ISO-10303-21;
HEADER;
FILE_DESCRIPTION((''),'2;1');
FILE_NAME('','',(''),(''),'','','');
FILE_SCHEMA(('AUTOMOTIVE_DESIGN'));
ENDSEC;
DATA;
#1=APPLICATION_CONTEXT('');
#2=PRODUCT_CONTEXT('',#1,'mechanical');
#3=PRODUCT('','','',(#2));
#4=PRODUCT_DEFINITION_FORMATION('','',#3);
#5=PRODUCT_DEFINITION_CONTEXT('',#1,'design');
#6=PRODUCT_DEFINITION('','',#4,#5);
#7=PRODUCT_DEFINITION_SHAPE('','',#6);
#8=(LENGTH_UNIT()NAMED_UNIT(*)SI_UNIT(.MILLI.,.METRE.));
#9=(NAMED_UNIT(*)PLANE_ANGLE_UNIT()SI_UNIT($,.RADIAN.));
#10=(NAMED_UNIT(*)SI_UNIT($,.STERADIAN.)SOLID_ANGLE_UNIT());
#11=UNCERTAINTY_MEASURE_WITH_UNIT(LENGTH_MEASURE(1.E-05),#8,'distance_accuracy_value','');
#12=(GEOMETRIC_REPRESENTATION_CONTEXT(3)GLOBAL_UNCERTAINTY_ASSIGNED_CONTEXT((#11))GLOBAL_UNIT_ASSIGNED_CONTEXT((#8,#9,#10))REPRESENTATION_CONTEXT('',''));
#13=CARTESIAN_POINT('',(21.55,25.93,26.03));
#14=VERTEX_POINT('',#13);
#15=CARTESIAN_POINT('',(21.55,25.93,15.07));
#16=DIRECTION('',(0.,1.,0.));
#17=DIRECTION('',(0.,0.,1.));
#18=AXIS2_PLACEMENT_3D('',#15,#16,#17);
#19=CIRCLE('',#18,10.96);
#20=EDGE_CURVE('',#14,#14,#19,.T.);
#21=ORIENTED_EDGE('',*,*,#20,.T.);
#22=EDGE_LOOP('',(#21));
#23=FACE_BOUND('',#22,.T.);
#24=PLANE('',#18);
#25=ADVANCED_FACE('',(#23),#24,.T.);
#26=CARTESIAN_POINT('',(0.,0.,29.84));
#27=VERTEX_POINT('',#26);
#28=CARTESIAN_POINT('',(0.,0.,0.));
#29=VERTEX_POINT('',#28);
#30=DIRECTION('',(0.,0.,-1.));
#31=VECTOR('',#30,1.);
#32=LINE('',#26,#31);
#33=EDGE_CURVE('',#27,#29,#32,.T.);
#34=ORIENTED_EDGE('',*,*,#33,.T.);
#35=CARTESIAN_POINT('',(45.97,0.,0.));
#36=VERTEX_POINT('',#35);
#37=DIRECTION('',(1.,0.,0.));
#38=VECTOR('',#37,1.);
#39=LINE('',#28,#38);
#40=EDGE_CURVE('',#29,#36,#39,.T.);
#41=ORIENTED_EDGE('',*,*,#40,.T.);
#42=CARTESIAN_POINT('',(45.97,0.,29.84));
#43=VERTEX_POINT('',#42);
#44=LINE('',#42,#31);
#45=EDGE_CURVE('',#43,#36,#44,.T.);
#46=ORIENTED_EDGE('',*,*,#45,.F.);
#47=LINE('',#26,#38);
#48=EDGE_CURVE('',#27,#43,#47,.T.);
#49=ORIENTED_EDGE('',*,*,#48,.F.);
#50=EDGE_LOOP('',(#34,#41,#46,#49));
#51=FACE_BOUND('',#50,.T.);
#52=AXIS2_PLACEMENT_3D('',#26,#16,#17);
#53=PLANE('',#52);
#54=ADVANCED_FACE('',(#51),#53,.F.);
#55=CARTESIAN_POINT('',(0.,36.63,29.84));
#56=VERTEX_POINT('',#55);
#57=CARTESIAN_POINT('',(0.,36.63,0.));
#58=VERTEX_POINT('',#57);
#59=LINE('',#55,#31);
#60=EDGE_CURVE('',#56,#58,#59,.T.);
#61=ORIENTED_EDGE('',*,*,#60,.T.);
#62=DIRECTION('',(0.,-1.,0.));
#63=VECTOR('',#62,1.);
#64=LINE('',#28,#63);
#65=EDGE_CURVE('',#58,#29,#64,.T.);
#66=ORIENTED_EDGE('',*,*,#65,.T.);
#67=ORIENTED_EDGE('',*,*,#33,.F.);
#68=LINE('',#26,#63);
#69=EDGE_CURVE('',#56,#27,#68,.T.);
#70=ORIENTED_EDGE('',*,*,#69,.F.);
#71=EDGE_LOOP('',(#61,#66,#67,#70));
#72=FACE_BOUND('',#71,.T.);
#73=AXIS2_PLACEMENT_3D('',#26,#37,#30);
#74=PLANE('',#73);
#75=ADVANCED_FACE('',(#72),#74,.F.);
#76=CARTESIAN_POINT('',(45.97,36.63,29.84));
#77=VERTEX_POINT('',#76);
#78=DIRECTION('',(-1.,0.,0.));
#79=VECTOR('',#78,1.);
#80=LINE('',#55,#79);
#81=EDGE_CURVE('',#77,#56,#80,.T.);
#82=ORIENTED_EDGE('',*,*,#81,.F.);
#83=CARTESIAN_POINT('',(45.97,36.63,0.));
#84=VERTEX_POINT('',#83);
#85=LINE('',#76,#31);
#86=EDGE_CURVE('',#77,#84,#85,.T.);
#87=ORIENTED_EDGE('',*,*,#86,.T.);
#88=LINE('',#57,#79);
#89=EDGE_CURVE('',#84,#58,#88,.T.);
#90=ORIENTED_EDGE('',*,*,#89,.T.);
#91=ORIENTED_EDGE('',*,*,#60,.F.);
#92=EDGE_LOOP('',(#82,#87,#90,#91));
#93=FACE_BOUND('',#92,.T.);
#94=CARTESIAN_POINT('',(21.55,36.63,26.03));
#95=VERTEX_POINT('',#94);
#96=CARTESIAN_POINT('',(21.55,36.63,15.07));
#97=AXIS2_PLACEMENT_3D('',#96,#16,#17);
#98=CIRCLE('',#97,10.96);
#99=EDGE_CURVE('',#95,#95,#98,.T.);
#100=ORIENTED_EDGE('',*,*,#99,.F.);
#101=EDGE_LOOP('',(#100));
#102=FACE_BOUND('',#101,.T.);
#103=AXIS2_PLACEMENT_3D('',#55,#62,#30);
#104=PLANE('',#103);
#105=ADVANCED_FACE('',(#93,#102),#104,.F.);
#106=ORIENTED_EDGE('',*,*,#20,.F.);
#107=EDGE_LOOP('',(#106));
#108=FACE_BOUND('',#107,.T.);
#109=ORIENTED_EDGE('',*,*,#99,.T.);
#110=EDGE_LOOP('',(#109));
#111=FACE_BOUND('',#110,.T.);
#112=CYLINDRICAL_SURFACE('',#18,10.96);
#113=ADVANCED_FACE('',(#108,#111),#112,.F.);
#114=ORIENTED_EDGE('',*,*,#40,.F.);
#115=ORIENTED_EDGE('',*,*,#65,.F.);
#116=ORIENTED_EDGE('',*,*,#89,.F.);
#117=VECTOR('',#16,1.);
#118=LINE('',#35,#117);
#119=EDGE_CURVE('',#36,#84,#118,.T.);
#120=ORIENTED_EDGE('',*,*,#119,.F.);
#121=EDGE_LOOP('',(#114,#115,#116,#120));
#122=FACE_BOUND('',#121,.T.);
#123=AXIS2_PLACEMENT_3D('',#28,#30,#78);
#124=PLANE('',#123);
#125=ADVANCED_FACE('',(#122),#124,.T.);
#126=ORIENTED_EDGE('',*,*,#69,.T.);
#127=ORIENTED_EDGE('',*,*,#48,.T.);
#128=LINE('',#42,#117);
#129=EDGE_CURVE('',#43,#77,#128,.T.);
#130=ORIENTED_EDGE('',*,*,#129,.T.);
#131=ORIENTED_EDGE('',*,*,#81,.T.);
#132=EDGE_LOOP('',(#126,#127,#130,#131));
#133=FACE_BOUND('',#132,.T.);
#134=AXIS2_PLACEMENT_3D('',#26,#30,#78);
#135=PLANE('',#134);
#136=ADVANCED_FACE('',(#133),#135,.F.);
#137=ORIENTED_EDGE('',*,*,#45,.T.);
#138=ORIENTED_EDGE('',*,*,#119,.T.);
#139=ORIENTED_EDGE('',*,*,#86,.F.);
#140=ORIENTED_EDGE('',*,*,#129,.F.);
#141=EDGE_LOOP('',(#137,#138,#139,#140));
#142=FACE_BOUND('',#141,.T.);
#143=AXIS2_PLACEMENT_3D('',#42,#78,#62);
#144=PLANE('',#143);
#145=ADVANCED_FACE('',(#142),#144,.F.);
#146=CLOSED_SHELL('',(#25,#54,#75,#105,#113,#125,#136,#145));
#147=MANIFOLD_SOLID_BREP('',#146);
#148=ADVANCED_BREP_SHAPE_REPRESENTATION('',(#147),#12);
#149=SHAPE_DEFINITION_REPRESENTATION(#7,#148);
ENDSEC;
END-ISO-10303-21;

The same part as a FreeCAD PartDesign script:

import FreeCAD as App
import Part
import Sketcher

V = App.Vector

doc = App.newDocument("Part")
body = doc.addObject("PartDesign::Body", "Body")

sketch1 = doc.addObject("Sketcher::SketchObject", "Sketch")
body.addObject(sketch1)
sketch1.AttachmentSupport = (doc.XY_Plane, [""])
sketch1.MapMode = "FlatFace"
sketch1.addGeometry([
    Part.LineSegment(V(0, 37, 0), V(0, 0, 0)),
    Part.LineSegment(V(0, 0, 0), V(46, 0, 0)),
    Part.LineSegment(V(46, 0, 0), V(46, 37, 0)),
    Part.LineSegment(V(46, 37, 0), V(0, 37, 0)),
], False)
sketch1.addConstraint([
    Sketcher.Constraint("Coincident", 0, 2, 1, 1),
    Sketcher.Constraint("Coincident", 1, 2, 2, 1),
    Sketcher.Constraint("Coincident", 2, 2, 3, 1),
    Sketcher.Constraint("Coincident", 3, 2, 0, 1),
    Sketcher.Constraint("Vertical", 0),
    Sketcher.Constraint("Horizontal", 1),
    Sketcher.Constraint("Vertical", 2),
    Sketcher.Constraint("Horizontal", 3),
    Sketcher.Constraint("Coincident", 0, 2, -1, 1),
    Sketcher.Constraint("DistanceX", 1, 1, 1, 2, 45.97),
    Sketcher.Constraint("DistanceY", 0, 2, 0, 1, 36.63),
])
pad1 = doc.addObject("PartDesign::Pad", "Pad")
body.addObject(pad1)
pad1.Profile = sketch1
pad1.Length = 29.84

sketch2 = doc.addObject("Sketcher::SketchObject", "Sketch001")
body.addObject(sketch2)
sketch2.AttachmentSupport = (doc.XZ_Plane, [""])
sketch2.MapMode = "FlatFace"
sketch2.AttachmentOffset = App.Placement(V(0, 0, -36.63), App.Rotation())
sketch2.addGeometry(Part.Circle(V(22, 15, 0), V(0, 0, 1), 11), False)
sketch2.addConstraint([
    Sketcher.Constraint("Diameter", 0, 21.92),
    Sketcher.Constraint("DistanceX", -1, 1, 0, 3, 21.55),
    Sketcher.Constraint("DistanceY", -1, 1, 0, 3, 15.07),
])
pocket1 = doc.addObject("PartDesign::Pocket", "Pocket")
body.addObject(pocket1)
pocket1.Profile = sketch2
pocket1.Length = 10.7
pocket1.Reversed = True

doc.recompute()
